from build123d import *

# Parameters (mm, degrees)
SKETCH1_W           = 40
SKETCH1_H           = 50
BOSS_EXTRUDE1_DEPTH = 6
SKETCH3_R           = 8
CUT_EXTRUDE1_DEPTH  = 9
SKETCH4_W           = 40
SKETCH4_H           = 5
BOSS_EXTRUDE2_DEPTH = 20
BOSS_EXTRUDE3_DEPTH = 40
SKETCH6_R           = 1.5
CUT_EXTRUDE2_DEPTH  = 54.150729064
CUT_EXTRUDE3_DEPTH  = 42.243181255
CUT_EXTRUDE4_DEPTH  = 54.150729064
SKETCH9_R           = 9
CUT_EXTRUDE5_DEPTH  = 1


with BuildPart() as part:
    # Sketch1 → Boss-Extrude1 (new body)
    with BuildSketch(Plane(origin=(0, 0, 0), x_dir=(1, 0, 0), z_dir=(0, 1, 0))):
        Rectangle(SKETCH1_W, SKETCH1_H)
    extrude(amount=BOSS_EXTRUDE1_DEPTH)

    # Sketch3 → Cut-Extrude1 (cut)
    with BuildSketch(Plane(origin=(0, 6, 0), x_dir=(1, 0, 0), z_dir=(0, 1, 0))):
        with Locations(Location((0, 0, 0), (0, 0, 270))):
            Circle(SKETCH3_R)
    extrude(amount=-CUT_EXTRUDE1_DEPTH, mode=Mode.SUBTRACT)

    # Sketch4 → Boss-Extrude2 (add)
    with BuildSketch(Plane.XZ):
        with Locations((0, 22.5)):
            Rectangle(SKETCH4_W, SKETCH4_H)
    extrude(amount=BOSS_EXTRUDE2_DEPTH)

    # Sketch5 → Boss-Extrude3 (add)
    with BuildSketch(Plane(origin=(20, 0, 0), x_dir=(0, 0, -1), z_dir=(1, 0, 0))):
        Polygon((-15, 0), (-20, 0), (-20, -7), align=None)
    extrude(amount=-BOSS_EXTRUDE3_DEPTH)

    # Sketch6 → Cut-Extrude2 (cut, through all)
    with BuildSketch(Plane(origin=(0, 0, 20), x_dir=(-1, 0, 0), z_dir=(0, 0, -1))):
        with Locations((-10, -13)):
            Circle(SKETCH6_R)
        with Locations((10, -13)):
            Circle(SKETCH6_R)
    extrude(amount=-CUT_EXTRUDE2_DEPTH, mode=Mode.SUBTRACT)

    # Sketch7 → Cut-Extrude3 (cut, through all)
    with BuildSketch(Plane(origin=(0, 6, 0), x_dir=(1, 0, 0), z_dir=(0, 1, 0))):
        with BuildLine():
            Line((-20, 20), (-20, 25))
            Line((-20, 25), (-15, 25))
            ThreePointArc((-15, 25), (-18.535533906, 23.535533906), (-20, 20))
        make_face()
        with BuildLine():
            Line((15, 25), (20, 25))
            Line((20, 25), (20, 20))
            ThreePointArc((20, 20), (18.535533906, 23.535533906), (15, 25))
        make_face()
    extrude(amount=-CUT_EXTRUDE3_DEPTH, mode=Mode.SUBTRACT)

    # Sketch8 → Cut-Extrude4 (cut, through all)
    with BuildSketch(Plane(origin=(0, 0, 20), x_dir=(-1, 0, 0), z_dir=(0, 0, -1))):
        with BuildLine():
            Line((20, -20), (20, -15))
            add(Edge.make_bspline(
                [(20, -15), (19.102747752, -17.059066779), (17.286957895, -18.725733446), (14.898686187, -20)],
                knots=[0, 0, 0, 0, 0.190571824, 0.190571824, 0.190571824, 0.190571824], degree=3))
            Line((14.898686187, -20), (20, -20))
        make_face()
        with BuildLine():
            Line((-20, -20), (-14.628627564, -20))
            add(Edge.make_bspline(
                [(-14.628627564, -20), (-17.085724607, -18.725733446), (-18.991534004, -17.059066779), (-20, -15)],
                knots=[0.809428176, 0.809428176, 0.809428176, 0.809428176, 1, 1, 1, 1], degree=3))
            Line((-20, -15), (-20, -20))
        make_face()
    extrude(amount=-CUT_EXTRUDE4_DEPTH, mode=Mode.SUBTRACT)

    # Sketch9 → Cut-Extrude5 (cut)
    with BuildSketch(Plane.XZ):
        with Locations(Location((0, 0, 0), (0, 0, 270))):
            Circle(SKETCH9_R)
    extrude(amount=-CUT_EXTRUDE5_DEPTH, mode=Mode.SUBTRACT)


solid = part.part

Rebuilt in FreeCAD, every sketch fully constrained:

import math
import FreeCAD as App
import Part
import Sketcher

doc = App.newDocument("Part")
params = doc.addObject("Spreadsheet::Sheet", "Params")
for row, (alias, value) in enumerate([
    ("sketch1_width", "40 mm"),
    ("sketch1_height", "50 mm"),
    ("pad1_length", "6 mm"),
    ("sketch2_diameter", "16 mm"),
    ("pocket1_length", "9 mm"),
    ("sketch3_width", "40 mm"),
    ("sketch3_height", "5 mm"),
    ("pad2_length", "20 mm"),
    ("sketch4_width", "7 mm"),
    ("sketch4_height", "5 mm"),
    ("pad3_length", "40 mm"),
    ("sketch5_diameter", "3 mm"),
    ("sketch6_radius", "5 mm"),
    ("sketch8_diameter", "18 mm"),
    ("pocket5_length", "1 mm"),
], start=1):
    params.set(f"A{row}", alias)
    params.set(f"B{row}", "=" + value)
    params.setAlias(f"B{row}", alias)

body = doc.addObject("PartDesign::Body", "Body")

sketch1 = body.newObject("Sketcher::SketchObject", "Sketch")
sketch1.AttachmentSupport = (doc.getObject("XZ_Plane"), [""])
sketch1.MapMode = "FlatFace"
sketch1.addGeometry(Part.LineSegment(App.Vector(-20, -25, 0), App.Vector(-20, 25, 0)), False)
sketch1.addGeometry(Part.LineSegment(App.Vector(-20, 25, 0), App.Vector(20, 25, 0)), False)
sketch1.addGeometry(Part.LineSegment(App.Vector(20, 25, 0), App.Vector(20, -25, 0)), False)
sketch1.addGeometry(Part.LineSegment(App.Vector(20, -25, 0), App.Vector(-20, -25, 0)), False)
sketch1.addConstraint(Sketcher.Constraint("Coincident", 0, 2, 1, 1))
sketch1.addConstraint(Sketcher.Constraint("Coincident", 1, 2, 2, 1))
sketch1.addConstraint(Sketcher.Constraint("Coincident", 2, 2, 3, 1))
sketch1.addConstraint(Sketcher.Constraint("Coincident", 3, 2, 0, 1))
sketch1.addConstraint(Sketcher.Constraint("Vertical", 0))
sketch1.addConstraint(Sketcher.Constraint("Horizontal", 1))
sketch1.addConstraint(Sketcher.Constraint("Vertical", 2))
sketch1.addConstraint(Sketcher.Constraint("Horizontal", 3))
sketch1.addConstraint(Sketcher.Constraint("Symmetric", 0, 2, 2, 2, -1, 1))
sketch1.addConstraint(Sketcher.Constraint("DistanceX", 1, 1, 1, 2, 40.0))
sketch1.addConstraint(Sketcher.Constraint("DistanceY", 0, 1, 0, 2, 50.0))
sketch1.setExpression("Constraints[9]", "Params.sketch1_width")
sketch1.setExpression("Constraints[10]", "Params.sketch1_height")
pad1 = body.newObject("PartDesign::Pad", "Pad")
pad1.Profile = sketch1
pad1.setExpression("Length", "Params.pad1_length")
pad1.Reversed = True

sketch2 = body.newObject("Sketcher::SketchObject", "Sketch001")
sketch2.AttachmentSupport = (doc.getObject("XZ_Plane"), [""])
sketch2.MapMode = "FlatFace"
sketch2.AttachmentOffset = App.Placement(App.Vector(0, 0, -6), App.Rotation())
sketch2.addGeometry(Part.Circle(App.Vector(0, 0, 0), App.Vector(0, 0, 1), 8), False)
sketch2.addConstraint(Sketcher.Constraint("Coincident", 0, 3, -1, 1))
sketch2.addConstraint(Sketcher.Constraint("Diameter", 0, 16.0))
sketch2.setExpression("Constraints[1]", "Params.sketch2_diameter")
pocket1 = body.newObject("PartDesign::Pocket", "Pocket")
pocket1.Profile = sketch2
pocket1.setExpression("Length", "Params.pocket1_length")
pocket1.Reversed = True

sketch3 = body.newObject("Sketcher::SketchObject", "Sketch002")
sketch3.AttachmentSupport = (doc.getObject("XZ_Plane"), [""])
sketch3.MapMode = "FlatFace"
sketch3.addGeometry(Part.LineSegment(App.Vector(-20, 25, 0), App.Vector(-20, 20, 0)), False)
sketch3.addGeometry(Part.LineSegment(App.Vector(-20, 20, 0), App.Vector(20, 20, 0)), False)
sketch3.addGeometry(Part.LineSegment(App.Vector(20, 20, 0), App.Vector(20, 25, 0)), False)
sketch3.addGeometry(Part.LineSegment(App.Vector(20, 25, 0), App.Vector(-20, 25, 0)), False)
sketch3.addConstraint(Sketcher.Constraint("Coincident", 0, 2, 1, 1))
sketch3.addConstraint(Sketcher.Constraint("Coincident", 1, 2, 2, 1))
sketch3.addConstraint(Sketcher.Constraint("Coincident", 2, 2, 3, 1))
sketch3.addConstraint(Sketcher.Constraint("Coincident", 3, 2, 0, 1))
sketch3.addConstraint(Sketcher.Constraint("Vertical", 0))
sketch3.addConstraint(Sketcher.Constraint("Horizontal", 1))
sketch3.addConstraint(Sketcher.Constraint("Vertical", 2))
sketch3.addConstraint(Sketcher.Constraint("Horizontal", 3))
sketch3.addConstraint(Sketcher.Constraint("DistanceX", 1, 1, 1, 2, 40.0))
sketch3.addConstraint(Sketcher.Constraint("DistanceY", 0, 2, 0, 1, 5.0))
sketch3.addConstraint(Sketcher.Constraint("DistanceX", 0, 2, -1, 1, 20.0))
sketch3.addConstraint(Sketcher.Constraint("DistanceY", -1, 1, 0, 2, 20.0))
sketch3.setExpression("Constraints[8]", "Params.sketch3_width")
sketch3.setExpression("Constraints[9]", "Params.sketch3_height")
pad2 = body.newObject("PartDesign::Pad", "Pad001")
pad2.Profile = sketch3
pad2.setExpression("Length", "Params.pad2_length")

sketch4 = body.newObject("Sketcher::SketchObject", "Sketch003")
sketch4.AttachmentSupport = (doc.getObject("YZ_Plane"), [""])
sketch4.MapMode = "FlatFace"
sketch4.AttachmentOffset = App.Placement(App.Vector(0, 0, 20), App.Rotation())
sketch4.addGeometry(Part.LineSegment(App.Vector(0, 15, 0), App.Vector(0, 20, 0)), False)
sketch4.addGeometry(Part.LineSegment(App.Vector(0, 20, 0), App.Vector(-7, 20, 0)), False)
sketch4.addGeometry(Part.LineSegment(App.Vector(-7, 20, 0), App.Vector(0, 15, 0)), False)
sketch4.addConstraint(Sketcher.Constraint("Coincident", 0, 2, 1, 1))
sketch4.addConstraint(Sketcher.Constraint("Coincident", 1, 2, 2, 1))
sketch4.addConstraint(Sketcher.Constraint("Coincident", 2, 2, 0, 1))
sketch4.addConstraint(Sketcher.Constraint("Vertical", 0))
sketch4.addConstraint(Sketcher.Constraint("Horizontal", 1))
sketch4.addConstraint(Sketcher.Constraint("PointOnObject", 0, 2, -2))
sketch4.addConstraint(Sketcher.Constraint("DistanceX", 1, 2, 1, 1, 7.0))
sketch4.addConstraint(Sketcher.Constraint("DistanceY", 0, 1, 0, 2, 5.0))
sketch4.addConstraint(Sketcher.Constraint("DistanceY", -1, 1, 0, 2, 20.0))
sketch4.setExpression("Constraints[6]", "Params.sketch4_width")
sketch4.setExpression("Constraints[7]", "Params.sketch4_height")
pad3 = body.newObject("PartDesign::Pad", "Pad002")
pad3.Profile = sketch4
pad3.setExpression("Length", "Params.pad3_length")
pad3.Reversed = True

sketch5 = body.newObject("Sketcher::SketchObject", "Sketch004")
sketch5.AttachmentSupport = (doc.getObject("XY_Plane"), [""])
sketch5.MapMode = "FlatFace"
sketch5.AttachmentOffset = App.Placement(App.Vector(0, 0, 20), App.Rotation())
sketch5.addGeometry(Part.Circle(App.Vector(10, -13, 0), App.Vector(0, 0, 1), 1.5), False)
sketch5.addGeometry(Part.Circle(App.Vector(-10, -13, 0), App.Vector(0, 0, 1), 1.5), False)
sketch5.addConstraint(Sketcher.Constraint("Equal", 0, 1))
sketch5.addConstraint(Sketcher.Constraint("Symmetric", 0, 3, 1, 3, -2))
sketch5.addConstraint(Sketcher.Constraint("Diameter", 0, 3.0))
sketch5.addConstraint(Sketcher.Constraint("DistanceX", -1, 1, 0, 3, 10.0))
sketch5.addConstraint(Sketcher.Constraint("DistanceY", 0, 3, -1, 1, 13.0))
sketch5.setExpression("Constraints[2]", "Params.sketch5_diameter")
pocket2 = body.newObject("PartDesign::Pocket", "Pocket001")
pocket2.Profile = sketch5
pocket2.Type = "ThroughAll"
pocket2.Reversed = True

sketch6 = body.newObject("Sketcher::SketchObject", "Sketch005")
sketch6.AttachmentSupport = (doc.getObject("XZ_Plane"), [""])
sketch6.MapMode = "FlatFace"
sketch6.AttachmentOffset = App.Placement(App.Vector(0, 0, -6), App.Rotation())
sketch6.addGeometry(Part.LineSegment(App.Vector(-20, -25, 0), App.Vector(-20, -20, 0)), False)
sketch6.addGeometry(Part.ArcOfCircle(Part.Circle(App.Vector(-15, -20, 0), App.Vector(0, 0, 1), 5), math.radians(180), math.radians(270)), False)
sketch6.addGeometry(Part.LineSegment(App.Vector(-15, -25, 0), App.Vector(-20, -25, 0)), False)
sketch6.addGeometry(Part.LineSegment(App.Vector(20, -25, 0), App.Vector(15, -25, 0)), False)
sketch6.addGeometry(Part.ArcOfCircle(Part.Circle(App.Vector(15, -20, 0), App.Vector(0, 0, 1), 5), math.radians(-90), math.radians(0)), False)
sketch6.addGeometry(Part.LineSegment(App.Vector(20, -20, 0), App.Vector(20, -25, 0)), False)
sketch6.addConstraint(Sketcher.Constraint("Tangent", 0, 2, 1, 1))
sketch6.addConstraint(Sketcher.Constraint("Tangent", 1, 2, 2, 1))
sketch6.addConstraint(Sketcher.Constraint("Coincident", 2, 2, 0, 1))
sketch6.addConstraint(Sketcher.Constraint("Tangent", 3, 2, 4, 1))
sketch6.addConstraint(Sketcher.Constraint("Tangent", 4, 2, 5, 1))
sketch6.addConstraint(Sketcher.Constraint("Coincident", 5, 2, 3, 1))
sketch6.addConstraint(Sketcher.Constraint("Vertical", 0))
sketch6.addConstraint(Sketcher.Constraint("Horizontal", 2))
sketch6.addConstraint(Sketcher.Constraint("Horizontal", 3))
sketch6.addConstraint(Sketcher.Constraint("Vertical", 5))
sketch6.addConstraint(Sketcher.Constraint("Equal", 1, 4))
sketch6.addConstraint(Sketcher.Constraint("Symmetric", 1, 3, 4, 3, -2))
sketch6.addConstraint(Sketcher.Constraint("Radius", 1, 5.0))
sketch6.addConstraint(Sketcher.Constraint("DistanceX", 1, 3, -1, 1, 15.0))
sketch6.addConstraint(Sketcher.Constraint("DistanceY", 1, 3, -1, 1, 20.0))
sketch6.setExpression("Constraints[12]", "Params.sketch6_radius")
pocket3 = body.newObject("PartDesign::Pocket", "Pocket002")
pocket3.Profile = sketch6
pocket3.Type = "ThroughAll"
pocket3.Reversed = True

sketch7 = body.newObject("Sketcher::SketchObject", "Sketch006")
sketch7.AttachmentSupport = (doc.getObject("XY_Plane"), [""])
sketch7.MapMode = "FlatFace"
sketch7.AttachmentOffset = App.Placement(App.Vector(0, 0, 20), App.Rotation())
sketch7.addGeometry(Part.LineSegment(App.Vector(-20, -20, 0), App.Vector(-20, -15, 0)), False)
sketch7.addGeometry(Part.BSplineCurve([App.Vector(-20, -15, 0), App.Vector(-19.102748, -17.059067, 0), App.Vector(-17.286958, -18.725733, 0), App.Vector(-14.898686, -20, 0)], [4, 4], [0, 0.190571824], False, 3, [1, 1, 1, 1], False), False)
sketch7.addGeometry(Part.LineSegment(App.Vector(-14.898686, -20, 0), App.Vector(-20, -20, 0)), False)
sketch7.addGeometry(Part.LineSegment(App.Vector(20, -20, 0), App.Vector(14.628628, -20, 0)), False)
sketch7.addGeometry(Part.BSplineCurve([App.Vector(14.628628, -20, 0), App.Vector(17.085725, -18.725733, 0), App.Vector(18.991534, -17.059067, 0), App.Vector(20, -15, 0)], [4, 4], [0.809428176, 1], False, 3, [1, 1, 1, 1], False), False)
sketch7.addGeometry(Part.LineSegment(App.Vector(20, -15, 0), App.Vector(20, -20, 0)), False)
sketch7.addConstraint(Sketcher.Constraint("Block", 1))
sketch7.addConstraint(Sketcher.Constraint("Block", 4))
sketch7.addConstraint(Sketcher.Constraint("Coincident", 0, 2, 1, 1))
sketch7.addConstraint(Sketcher.Constraint("Coincident", 1, 2, 2, 1))
sketch7.addConstraint(Sketcher.Constraint("Coincident", 2, 2, 0, 1))
sketch7.addConstraint(Sketcher.Constraint("Coincident", 3, 2, 4, 1))
sketch7.addConstraint(Sketcher.Constraint("Coincident", 4, 2, 5, 1))
sketch7.addConstraint(Sketcher.Constraint("Coincident", 5, 2, 3, 1))
sketch7.addConstraint(Sketcher.Constraint("Vertical", 0))
sketch7.addConstraint(Sketcher.Constraint("Horizontal", 2))
sketch7.addConstraint(Sketcher.Constraint("Horizontal", 3))
sketch7.addConstraint(Sketcher.Constraint("Vertical", 5))
pocket4 = body.newObject("PartDesign::Pocket", "Pocket003")
pocket4.Profile = sketch7
pocket4.Type = "ThroughAll"
pocket4.Reversed = True

sketch8 = body.newObject("Sketcher::SketchObject", "Sketch007")
sketch8.AttachmentSupport = (doc.getObject("XZ_Plane"), [""])
sketch8.MapMode = "FlatFace"
sketch8.addGeometry(Part.Circle(App.Vector(0, 0, 0), App.Vector(0, 0, 1), 9), False)
sketch8.addConstraint(Sketcher.Constraint("Coincident", 0, 3, -1, 1))
sketch8.addConstraint(Sketcher.Constraint("Diameter", 0, 18.0))
sketch8.setExpression("Constraints[1]", "Params.sketch8_diameter")
pocket5 = body.newObject("PartDesign::Pocket", "Pocket004")
pocket5.Profile = sketch8
pocket5.setExpression("Length", "Params.pocket5_length")

doc.recompute()
